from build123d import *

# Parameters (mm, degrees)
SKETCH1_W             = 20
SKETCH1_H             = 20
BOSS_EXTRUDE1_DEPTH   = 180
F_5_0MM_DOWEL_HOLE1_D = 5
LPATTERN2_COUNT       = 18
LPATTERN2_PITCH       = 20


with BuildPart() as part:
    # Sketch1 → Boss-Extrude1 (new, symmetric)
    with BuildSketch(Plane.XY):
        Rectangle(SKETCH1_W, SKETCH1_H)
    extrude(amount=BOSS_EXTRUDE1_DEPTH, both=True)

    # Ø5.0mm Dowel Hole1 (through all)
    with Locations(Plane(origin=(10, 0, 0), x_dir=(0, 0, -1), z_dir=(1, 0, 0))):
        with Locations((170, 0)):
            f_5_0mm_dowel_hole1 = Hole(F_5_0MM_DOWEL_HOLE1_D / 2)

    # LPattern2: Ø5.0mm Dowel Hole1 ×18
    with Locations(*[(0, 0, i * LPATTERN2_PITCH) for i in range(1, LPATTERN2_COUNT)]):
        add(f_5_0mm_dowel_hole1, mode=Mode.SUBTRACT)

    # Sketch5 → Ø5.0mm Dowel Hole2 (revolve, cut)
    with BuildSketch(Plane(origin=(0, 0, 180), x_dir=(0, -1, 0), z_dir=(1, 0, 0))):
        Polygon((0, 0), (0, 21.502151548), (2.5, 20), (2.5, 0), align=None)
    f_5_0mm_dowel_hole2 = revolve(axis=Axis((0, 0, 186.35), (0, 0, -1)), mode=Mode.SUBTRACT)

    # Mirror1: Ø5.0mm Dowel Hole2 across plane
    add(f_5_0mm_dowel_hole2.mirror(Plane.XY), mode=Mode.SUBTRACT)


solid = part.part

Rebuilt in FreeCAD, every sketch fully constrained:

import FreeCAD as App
import Part
import Sketcher
from FreeCAD import Vector
Q = App.Units.Quantity

doc = App.newDocument("Part")
params = doc.addObject("Spreadsheet::Sheet", "Params")
for row, (alias, value) in enumerate([
    ("sketch1_width", "20 mm"),
    ("pad1_length", "360 mm"),
    ("sketch2_diameter", "5 mm"),
    ("hole_diameter", "5 mm"),
    ("linearpattern_pitch", "20 mm"),
    ("sketch3_height", "20 mm"),
    ("sketch3_width", "2.5 mm"),
    ("groove_angle", "360 deg"),
], start=1):
    params.set(f"A{row}", alias)
    params.set(f"B{row}", "=" + value)
    params.setAlias(f"B{row}", alias)

body = doc.addObject("PartDesign::Body", "Body")

sketch1 = body.newObject("Sketcher::SketchObject", "Sketch")
sketch1.AttachmentSupport = (doc.getObject("XY_Plane"), [""])
sketch1.MapMode = "FlatFace"
sketch1.addGeometry([
    Part.LineSegment(Vector(-10, 10, 0), Vector(-10, -10, 0)),
    Part.LineSegment(Vector(-10, -10, 0), Vector(10, -10, 0)),
    Part.LineSegment(Vector(10, -10, 0), Vector(10, 10, 0)),
    Part.LineSegment(Vector(10, 10, 0), Vector(-10, 10, 0)),
], False)
sketch1.addConstraint([
    Sketcher.Constraint("Coincident", 0, 2, 1, 1),
    Sketcher.Constraint("Coincident", 1, 2, 2, 1),
    Sketcher.Constraint("Coincident", 2, 2, 3, 1),
    Sketcher.Constraint("Coincident", 3, 2, 0, 1),
    Sketcher.Constraint("Vertical", 0),
    Sketcher.Constraint("Horizontal", 1),
    Sketcher.Constraint("Vertical", 2),
    Sketcher.Constraint("Horizontal", 3),
    Sketcher.Constraint("Symmetric", 0, 2, 2, 2, -1, 1),
    Sketcher.Constraint("Equal", 3, 0),
    Sketcher.Constraint("DistanceX", 1, 1, 1, 2, 20.0),
])
sketch1.setExpression("Constraints[10]", "Params.sketch1_width")
pad1 = body.newObject("PartDesign::Pad", "Pad")
pad1.Profile = sketch1
pad1.setExpression("Length", "Params.pad1_length")
pad1.Midplane = True

sketch2 = body.newObject("Sketcher::SketchObject", "Sketch001")
sketch2.AttachmentSupport = (doc.getObject("YZ_Plane"), [""])
sketch2.MapMode = "FlatFace"
sketch2.AttachmentOffset = App.Placement(Vector(0, 0, 10), App.Rotation())
sketch2.addGeometry(Part.Circle(Vector(0, -170, 0), Vector(0, 0, 1), 2.5), False)
sketch2.addConstraint([
    Sketcher.Constraint("PointOnObject", 0, 3, -2),
    Sketcher.Constraint("Diameter", 0, 5.0),
    Sketcher.Constraint("DistanceY", 0, 3, -1, 1, 170.0),
])
sketch2.setExpression("Constraints[1]", "Params.sketch2_diameter")
doc.recompute()
hole = body.newObject("PartDesign::Hole", "Hole")
hole.Profile = sketch2
hole.ThreadType = "None"
hole.setExpression("Diameter", "Params.hole_diameter")
hole.DepthType = "ThroughAll"
doc.recompute()

linearpattern = body.newObject("PartDesign::LinearPattern", "LinearPattern")
linearpattern.Originals = [hole]
linearpattern.Direction = (doc.getObject("Z_Axis"), [""])
linearpattern.Mode = "offset"
linearpattern.setExpression("Offset", "Params.linearpattern_pitch")
linearpattern.Occurrences = 18
body.Tip = linearpattern

sketch3 = body.newObject("Sketcher::SketchObject", "Sketch002")
sketch3.AttachmentSupport = (doc.getObject("YZ_Plane"), [""])
sketch3.MapMode = "FlatFace"
sketch3.addGeometry([
    Part.LineSegment(Vector(0, 158.497848, 0), Vector(0, 180, 0)),
    Part.LineSegment(Vector(0, 180, 0), Vector(-2.5, 180, 0)),
    Part.LineSegment(Vector(-2.5, 180, 0), Vector(-2.5, 160, 0)),
    Part.LineSegment(Vector(-2.5, 160, 0), Vector(0, 158.497848, 0)),
], False)
sketch3.addConstraint([
    Sketcher.Constraint("Coincident", 0, 2, 1, 1),
    Sketcher.Constraint("Coincident", 1, 2, 2, 1),
    Sketcher.Constraint("Coincident", 2, 2, 3, 1),
    Sketcher.Constraint("Coincident", 3, 2, 0, 1),
    Sketcher.Constraint("Vertical", 0),
    Sketcher.Constraint("Horizontal", 1),
    Sketcher.Constraint("Vertical", 2),
    Sketcher.Constraint("PointOnObject", 0, 2, -2),
    Sketcher.Constraint("DistanceY", 2, 2, 2, 1, 20.0),
    Sketcher.Constraint("Angle", 3, Q("-31 deg")),
    Sketcher.Constraint("DistanceX", 1, 2, 1, 1, 2.5),
    Sketcher.Constraint("DistanceY", -1, 1, 0, 2, 180.0),
])
sketch3.setExpression("Constraints[8]", "Params.sketch3_height")
sketch3.setExpression("Constraints[10]", "Params.sketch3_width")
groove = body.newObject("PartDesign::Groove", "Groove")
groove.Profile = sketch3
groove.ReferenceAxis = (sketch3, ["V_Axis"])
groove.setExpression("Angle", "Params.groove_angle")
doc.recompute()

mirrored = body.newObject("PartDesign::Mirrored", "Mirrored")
mirrored.Originals = [groove]
mirrored.MirrorPlane = (doc.getObject("XY_Plane"), [""])
body.Tip = mirrored

doc.recompute()
